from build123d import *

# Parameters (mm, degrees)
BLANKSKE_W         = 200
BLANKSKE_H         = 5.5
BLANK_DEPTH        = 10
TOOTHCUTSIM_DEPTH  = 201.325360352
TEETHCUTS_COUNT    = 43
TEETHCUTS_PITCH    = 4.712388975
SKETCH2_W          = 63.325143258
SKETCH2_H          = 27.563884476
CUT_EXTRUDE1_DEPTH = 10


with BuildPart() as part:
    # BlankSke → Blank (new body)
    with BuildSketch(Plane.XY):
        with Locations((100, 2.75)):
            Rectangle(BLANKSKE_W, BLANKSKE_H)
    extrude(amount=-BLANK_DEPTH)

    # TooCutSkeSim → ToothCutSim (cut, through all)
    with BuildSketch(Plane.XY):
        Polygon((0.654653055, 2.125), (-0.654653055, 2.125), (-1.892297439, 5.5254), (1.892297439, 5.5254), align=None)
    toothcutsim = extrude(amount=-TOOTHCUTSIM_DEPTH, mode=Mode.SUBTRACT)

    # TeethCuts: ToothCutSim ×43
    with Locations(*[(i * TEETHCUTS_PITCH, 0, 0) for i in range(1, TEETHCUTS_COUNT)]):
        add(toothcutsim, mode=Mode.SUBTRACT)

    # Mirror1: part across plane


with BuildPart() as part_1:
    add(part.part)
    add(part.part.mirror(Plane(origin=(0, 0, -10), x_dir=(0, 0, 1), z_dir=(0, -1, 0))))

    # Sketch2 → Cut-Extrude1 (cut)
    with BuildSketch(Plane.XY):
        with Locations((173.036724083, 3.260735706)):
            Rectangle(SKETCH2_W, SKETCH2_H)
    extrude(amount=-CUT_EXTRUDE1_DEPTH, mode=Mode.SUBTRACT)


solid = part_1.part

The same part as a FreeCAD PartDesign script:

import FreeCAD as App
import Part
import Sketcher
from FreeCAD import Vector
Q = App.Units.Quantity

doc = App.newDocument("Part")
body = doc.addObject("PartDesign::Body", "Body")

# Sketch on XY plane
sketch1 = body.newObject("Sketcher::SketchObject", "Sketch")
sketch1.AttachmentSupport = (doc.getObject("XY_Plane"), [""])
sketch1.MapMode = "FlatFace"
sketch1.addGeometry(Part.LineSegment(Vector(0, 6, 0), Vector(0, 0, 0)), False)
sketch1.addGeometry(Part.LineSegment(Vector(0, 0, 0), Vector(200, 0, 0)), False)
sketch1.addGeometry(Part.LineSegment(Vector(200, 0, 0), Vector(200, 6, 0)), False)
sketch1.addGeometry(Part.LineSegment(Vector(200, 6, 0), Vector(0, 6, 0)), False)
sketch1.addConstraint(Sketcher.Constraint("Coincident", 0, 2, 1, 1))
sketch1.addConstraint(Sketcher.Constraint("Coincident", 1, 2, 2, 1))
sketch1.addConstraint(Sketcher.Constraint("Coincident", 2, 2, 3, 1))
sketch1.addConstraint(Sketcher.Constraint("Coincident", 3, 2, 0, 1))
sketch1.addConstraint(Sketcher.Constraint("Vertical", 0))
sketch1.addConstraint(Sketcher.Constraint("Horizontal", 1))
sketch1.addConstraint(Sketcher.Constraint("Vertical", 2))
sketch1.addConstraint(Sketcher.Constraint("Horizontal", 3))
sketch1.addConstraint(Sketcher.Constraint("Coincident", 0, 2, -1, 1))
sketch1.addConstraint(Sketcher.Constraint("DistanceX", 1, 1, 1, 2, Q("200 mm")))
sketch1.addConstraint(Sketcher.Constraint("DistanceY", 0, 2, 0, 1, Q("5.5 mm")))
pad1 = body.newObject("PartDesign::Pad", "Pad")
pad1.Profile = sketch1
pad1.Length = 10
pad1.Reversed = True

# Sketch on XY plane
sketch2 = body.newObject("Sketcher::SketchObject", "Sketch001")
sketch2.AttachmentSupport = (doc.getObject("XY_Plane"), [""])
sketch2.MapMode = "FlatFace"
sketch2.addGeometry(Part.LineSegment(Vector(-0.7, 2.1, 0), Vector(0.7, 2.1, 0)), False)
sketch2.addGeometry(Part.LineSegment(Vector(0.7, 2.1, 0), Vector(1.9, 5.5, 0)), False)
sketch2.addGeometry(Part.LineSegment(Vector(1.9, 5.5, 0), Vector(-1.9, 5.5, 0)), False)
sketch2.addGeometry(Part.LineSegment(Vector(-1.9, 5.5, 0), Vector(-0.7, 2.1, 0)), False)
sketch2.addConstraint(Sketcher.Constraint("Coincident", 0, 2, 1, 1))
sketch2.addConstraint(Sketcher.Constraint("Coincident", 1, 2, 2, 1))
sketch2.addConstraint(Sketcher.Constraint("Coincident", 2, 2, 3, 1))
sketch2.addConstraint(Sketcher.Constraint("Coincident", 3, 2, 0, 1))
sketch2.addConstraint(Sketcher.Constraint("Horizontal", 0))
sketch2.addConstraint(Sketcher.Constraint("Horizontal", 2))
sketch2.addConstraint(Sketcher.Constraint("Equal", 1, 3))
sketch2.addConstraint(Sketcher.Constraint("Angle", 1, Q("70 deg")))
sketch2.addConstraint(Sketcher.Constraint("DistanceY", -1, 1, 0, 2, Q("2.125 mm")))
sketch2.addConstraint(Sketcher.Constraint("DistanceY", -1, 1, 1, 2, Q("5.5254 mm")))
sketch2.addConstraint(Sketcher.Constraint("DistanceX", 0, 1, 0, 2, Q("1.309306 mm")))
sketch2.addConstraint(Sketcher.Constraint("DistanceX", -1, 1, 0, 2, Q("0.654653 mm")))
pocket1 = body.newObject("PartDesign::Pocket", "Pocket")
pocket1.Profile = sketch2
pocket1.Type = "ThroughAll"
doc.recompute()

linearpattern = body.newObject("PartDesign::LinearPattern", "LinearPattern")
linearpattern.Originals = [pocket1]
linearpattern.Direction = (doc.getObject("X_Axis"), [""])
linearpattern.Mode = "offset"
linearpattern.Offset = 4.712389
linearpattern.Occurrences = 43
body.Tip = linearpattern
body2 = doc.addObject("PartDesign::Body", "Body001")
doc.recompute()

body2.BaseFeature = body
doc.recompute()

mirroring = doc.addObject("Part::Mirroring", "Mirroring")
mirroring.Source = body
mirroring.Base = Vector(0, 0, -10)
mirroring.Normal = Vector(0, -1, 0)
body3 = doc.addObject("PartDesign::Body", "Body002")
body3.BaseFeature = mirroring
boolean = body2.newObject("PartDesign::Boolean", "Boolean")
boolean.Type = "Fuse"
boolean.addObjects([body3])
doc.recompute()

# Sketch on XY plane
sketch3 = body2.newObject("Sketcher::SketchObject", "Sketch002")
sketch3.AttachmentSupport = (doc.getObject("XY_Plane001"), [""])
sketch3.MapMode = "FlatFace"
sketch3.addGeometry(Part.LineSegment(Vector(141, 17, 0), Vector(141, -11, 0)), False)
sketch3.addGeometry(Part.LineSegment(Vector(141, -11, 0), Vector(205, -11, 0)), False)
sketch3.addGeometry(Part.LineSegment(Vector(205, -11, 0), Vector(205, 17, 0)), False)
sketch3.addGeometry(Part.LineSegment(Vector(205, 17, 0), Vector(141, 17, 0)), False)
sketch3.addConstraint(Sketcher.Constraint("Coincident", 0, 2, 1, 1))
sketch3.addConstraint(Sketcher.Constraint("Coincident", 1, 2, 2, 1))
sketch3.addConstraint(Sketcher.Constraint("Coincident", 2, 2, 3, 1))
sketch3.addConstraint(Sketcher.Constraint("Coincident", 3, 2, 0, 1))
sketch3.addConstraint(Sketcher.Constraint("Vertical", 0))
sketch3.addConstraint(Sketcher.Constraint("Horizontal", 1))
sketch3.addConstraint(Sketcher.Constraint("Vertical", 2))
sketch3.addConstraint(Sketcher.Constraint("Horizontal", 3))
sketch3.addConstraint(Sketcher.Constraint("DistanceX", 1, 1, 1, 2, Q("63.325143 mm")))
sketch3.addConstraint(Sketcher.Constraint("DistanceY", 0, 2, 0, 1, Q("27.563884 mm")))
sketch3.addConstraint(Sketcher.Constraint("DistanceX", -1, 1, 0, 2, Q("141.374152 mm")))
sketch3.addConstraint(Sketcher.Constraint("DistanceY", 0, 2, -1, 1, Q("10.521207 mm")))
pocket2 = body2.newObject("PartDesign::Pocket", "Pocket001")
pocket2.Profile = sketch3
pocket2.Length = 10
mirroring.Visibility = False

doc.recompute()
